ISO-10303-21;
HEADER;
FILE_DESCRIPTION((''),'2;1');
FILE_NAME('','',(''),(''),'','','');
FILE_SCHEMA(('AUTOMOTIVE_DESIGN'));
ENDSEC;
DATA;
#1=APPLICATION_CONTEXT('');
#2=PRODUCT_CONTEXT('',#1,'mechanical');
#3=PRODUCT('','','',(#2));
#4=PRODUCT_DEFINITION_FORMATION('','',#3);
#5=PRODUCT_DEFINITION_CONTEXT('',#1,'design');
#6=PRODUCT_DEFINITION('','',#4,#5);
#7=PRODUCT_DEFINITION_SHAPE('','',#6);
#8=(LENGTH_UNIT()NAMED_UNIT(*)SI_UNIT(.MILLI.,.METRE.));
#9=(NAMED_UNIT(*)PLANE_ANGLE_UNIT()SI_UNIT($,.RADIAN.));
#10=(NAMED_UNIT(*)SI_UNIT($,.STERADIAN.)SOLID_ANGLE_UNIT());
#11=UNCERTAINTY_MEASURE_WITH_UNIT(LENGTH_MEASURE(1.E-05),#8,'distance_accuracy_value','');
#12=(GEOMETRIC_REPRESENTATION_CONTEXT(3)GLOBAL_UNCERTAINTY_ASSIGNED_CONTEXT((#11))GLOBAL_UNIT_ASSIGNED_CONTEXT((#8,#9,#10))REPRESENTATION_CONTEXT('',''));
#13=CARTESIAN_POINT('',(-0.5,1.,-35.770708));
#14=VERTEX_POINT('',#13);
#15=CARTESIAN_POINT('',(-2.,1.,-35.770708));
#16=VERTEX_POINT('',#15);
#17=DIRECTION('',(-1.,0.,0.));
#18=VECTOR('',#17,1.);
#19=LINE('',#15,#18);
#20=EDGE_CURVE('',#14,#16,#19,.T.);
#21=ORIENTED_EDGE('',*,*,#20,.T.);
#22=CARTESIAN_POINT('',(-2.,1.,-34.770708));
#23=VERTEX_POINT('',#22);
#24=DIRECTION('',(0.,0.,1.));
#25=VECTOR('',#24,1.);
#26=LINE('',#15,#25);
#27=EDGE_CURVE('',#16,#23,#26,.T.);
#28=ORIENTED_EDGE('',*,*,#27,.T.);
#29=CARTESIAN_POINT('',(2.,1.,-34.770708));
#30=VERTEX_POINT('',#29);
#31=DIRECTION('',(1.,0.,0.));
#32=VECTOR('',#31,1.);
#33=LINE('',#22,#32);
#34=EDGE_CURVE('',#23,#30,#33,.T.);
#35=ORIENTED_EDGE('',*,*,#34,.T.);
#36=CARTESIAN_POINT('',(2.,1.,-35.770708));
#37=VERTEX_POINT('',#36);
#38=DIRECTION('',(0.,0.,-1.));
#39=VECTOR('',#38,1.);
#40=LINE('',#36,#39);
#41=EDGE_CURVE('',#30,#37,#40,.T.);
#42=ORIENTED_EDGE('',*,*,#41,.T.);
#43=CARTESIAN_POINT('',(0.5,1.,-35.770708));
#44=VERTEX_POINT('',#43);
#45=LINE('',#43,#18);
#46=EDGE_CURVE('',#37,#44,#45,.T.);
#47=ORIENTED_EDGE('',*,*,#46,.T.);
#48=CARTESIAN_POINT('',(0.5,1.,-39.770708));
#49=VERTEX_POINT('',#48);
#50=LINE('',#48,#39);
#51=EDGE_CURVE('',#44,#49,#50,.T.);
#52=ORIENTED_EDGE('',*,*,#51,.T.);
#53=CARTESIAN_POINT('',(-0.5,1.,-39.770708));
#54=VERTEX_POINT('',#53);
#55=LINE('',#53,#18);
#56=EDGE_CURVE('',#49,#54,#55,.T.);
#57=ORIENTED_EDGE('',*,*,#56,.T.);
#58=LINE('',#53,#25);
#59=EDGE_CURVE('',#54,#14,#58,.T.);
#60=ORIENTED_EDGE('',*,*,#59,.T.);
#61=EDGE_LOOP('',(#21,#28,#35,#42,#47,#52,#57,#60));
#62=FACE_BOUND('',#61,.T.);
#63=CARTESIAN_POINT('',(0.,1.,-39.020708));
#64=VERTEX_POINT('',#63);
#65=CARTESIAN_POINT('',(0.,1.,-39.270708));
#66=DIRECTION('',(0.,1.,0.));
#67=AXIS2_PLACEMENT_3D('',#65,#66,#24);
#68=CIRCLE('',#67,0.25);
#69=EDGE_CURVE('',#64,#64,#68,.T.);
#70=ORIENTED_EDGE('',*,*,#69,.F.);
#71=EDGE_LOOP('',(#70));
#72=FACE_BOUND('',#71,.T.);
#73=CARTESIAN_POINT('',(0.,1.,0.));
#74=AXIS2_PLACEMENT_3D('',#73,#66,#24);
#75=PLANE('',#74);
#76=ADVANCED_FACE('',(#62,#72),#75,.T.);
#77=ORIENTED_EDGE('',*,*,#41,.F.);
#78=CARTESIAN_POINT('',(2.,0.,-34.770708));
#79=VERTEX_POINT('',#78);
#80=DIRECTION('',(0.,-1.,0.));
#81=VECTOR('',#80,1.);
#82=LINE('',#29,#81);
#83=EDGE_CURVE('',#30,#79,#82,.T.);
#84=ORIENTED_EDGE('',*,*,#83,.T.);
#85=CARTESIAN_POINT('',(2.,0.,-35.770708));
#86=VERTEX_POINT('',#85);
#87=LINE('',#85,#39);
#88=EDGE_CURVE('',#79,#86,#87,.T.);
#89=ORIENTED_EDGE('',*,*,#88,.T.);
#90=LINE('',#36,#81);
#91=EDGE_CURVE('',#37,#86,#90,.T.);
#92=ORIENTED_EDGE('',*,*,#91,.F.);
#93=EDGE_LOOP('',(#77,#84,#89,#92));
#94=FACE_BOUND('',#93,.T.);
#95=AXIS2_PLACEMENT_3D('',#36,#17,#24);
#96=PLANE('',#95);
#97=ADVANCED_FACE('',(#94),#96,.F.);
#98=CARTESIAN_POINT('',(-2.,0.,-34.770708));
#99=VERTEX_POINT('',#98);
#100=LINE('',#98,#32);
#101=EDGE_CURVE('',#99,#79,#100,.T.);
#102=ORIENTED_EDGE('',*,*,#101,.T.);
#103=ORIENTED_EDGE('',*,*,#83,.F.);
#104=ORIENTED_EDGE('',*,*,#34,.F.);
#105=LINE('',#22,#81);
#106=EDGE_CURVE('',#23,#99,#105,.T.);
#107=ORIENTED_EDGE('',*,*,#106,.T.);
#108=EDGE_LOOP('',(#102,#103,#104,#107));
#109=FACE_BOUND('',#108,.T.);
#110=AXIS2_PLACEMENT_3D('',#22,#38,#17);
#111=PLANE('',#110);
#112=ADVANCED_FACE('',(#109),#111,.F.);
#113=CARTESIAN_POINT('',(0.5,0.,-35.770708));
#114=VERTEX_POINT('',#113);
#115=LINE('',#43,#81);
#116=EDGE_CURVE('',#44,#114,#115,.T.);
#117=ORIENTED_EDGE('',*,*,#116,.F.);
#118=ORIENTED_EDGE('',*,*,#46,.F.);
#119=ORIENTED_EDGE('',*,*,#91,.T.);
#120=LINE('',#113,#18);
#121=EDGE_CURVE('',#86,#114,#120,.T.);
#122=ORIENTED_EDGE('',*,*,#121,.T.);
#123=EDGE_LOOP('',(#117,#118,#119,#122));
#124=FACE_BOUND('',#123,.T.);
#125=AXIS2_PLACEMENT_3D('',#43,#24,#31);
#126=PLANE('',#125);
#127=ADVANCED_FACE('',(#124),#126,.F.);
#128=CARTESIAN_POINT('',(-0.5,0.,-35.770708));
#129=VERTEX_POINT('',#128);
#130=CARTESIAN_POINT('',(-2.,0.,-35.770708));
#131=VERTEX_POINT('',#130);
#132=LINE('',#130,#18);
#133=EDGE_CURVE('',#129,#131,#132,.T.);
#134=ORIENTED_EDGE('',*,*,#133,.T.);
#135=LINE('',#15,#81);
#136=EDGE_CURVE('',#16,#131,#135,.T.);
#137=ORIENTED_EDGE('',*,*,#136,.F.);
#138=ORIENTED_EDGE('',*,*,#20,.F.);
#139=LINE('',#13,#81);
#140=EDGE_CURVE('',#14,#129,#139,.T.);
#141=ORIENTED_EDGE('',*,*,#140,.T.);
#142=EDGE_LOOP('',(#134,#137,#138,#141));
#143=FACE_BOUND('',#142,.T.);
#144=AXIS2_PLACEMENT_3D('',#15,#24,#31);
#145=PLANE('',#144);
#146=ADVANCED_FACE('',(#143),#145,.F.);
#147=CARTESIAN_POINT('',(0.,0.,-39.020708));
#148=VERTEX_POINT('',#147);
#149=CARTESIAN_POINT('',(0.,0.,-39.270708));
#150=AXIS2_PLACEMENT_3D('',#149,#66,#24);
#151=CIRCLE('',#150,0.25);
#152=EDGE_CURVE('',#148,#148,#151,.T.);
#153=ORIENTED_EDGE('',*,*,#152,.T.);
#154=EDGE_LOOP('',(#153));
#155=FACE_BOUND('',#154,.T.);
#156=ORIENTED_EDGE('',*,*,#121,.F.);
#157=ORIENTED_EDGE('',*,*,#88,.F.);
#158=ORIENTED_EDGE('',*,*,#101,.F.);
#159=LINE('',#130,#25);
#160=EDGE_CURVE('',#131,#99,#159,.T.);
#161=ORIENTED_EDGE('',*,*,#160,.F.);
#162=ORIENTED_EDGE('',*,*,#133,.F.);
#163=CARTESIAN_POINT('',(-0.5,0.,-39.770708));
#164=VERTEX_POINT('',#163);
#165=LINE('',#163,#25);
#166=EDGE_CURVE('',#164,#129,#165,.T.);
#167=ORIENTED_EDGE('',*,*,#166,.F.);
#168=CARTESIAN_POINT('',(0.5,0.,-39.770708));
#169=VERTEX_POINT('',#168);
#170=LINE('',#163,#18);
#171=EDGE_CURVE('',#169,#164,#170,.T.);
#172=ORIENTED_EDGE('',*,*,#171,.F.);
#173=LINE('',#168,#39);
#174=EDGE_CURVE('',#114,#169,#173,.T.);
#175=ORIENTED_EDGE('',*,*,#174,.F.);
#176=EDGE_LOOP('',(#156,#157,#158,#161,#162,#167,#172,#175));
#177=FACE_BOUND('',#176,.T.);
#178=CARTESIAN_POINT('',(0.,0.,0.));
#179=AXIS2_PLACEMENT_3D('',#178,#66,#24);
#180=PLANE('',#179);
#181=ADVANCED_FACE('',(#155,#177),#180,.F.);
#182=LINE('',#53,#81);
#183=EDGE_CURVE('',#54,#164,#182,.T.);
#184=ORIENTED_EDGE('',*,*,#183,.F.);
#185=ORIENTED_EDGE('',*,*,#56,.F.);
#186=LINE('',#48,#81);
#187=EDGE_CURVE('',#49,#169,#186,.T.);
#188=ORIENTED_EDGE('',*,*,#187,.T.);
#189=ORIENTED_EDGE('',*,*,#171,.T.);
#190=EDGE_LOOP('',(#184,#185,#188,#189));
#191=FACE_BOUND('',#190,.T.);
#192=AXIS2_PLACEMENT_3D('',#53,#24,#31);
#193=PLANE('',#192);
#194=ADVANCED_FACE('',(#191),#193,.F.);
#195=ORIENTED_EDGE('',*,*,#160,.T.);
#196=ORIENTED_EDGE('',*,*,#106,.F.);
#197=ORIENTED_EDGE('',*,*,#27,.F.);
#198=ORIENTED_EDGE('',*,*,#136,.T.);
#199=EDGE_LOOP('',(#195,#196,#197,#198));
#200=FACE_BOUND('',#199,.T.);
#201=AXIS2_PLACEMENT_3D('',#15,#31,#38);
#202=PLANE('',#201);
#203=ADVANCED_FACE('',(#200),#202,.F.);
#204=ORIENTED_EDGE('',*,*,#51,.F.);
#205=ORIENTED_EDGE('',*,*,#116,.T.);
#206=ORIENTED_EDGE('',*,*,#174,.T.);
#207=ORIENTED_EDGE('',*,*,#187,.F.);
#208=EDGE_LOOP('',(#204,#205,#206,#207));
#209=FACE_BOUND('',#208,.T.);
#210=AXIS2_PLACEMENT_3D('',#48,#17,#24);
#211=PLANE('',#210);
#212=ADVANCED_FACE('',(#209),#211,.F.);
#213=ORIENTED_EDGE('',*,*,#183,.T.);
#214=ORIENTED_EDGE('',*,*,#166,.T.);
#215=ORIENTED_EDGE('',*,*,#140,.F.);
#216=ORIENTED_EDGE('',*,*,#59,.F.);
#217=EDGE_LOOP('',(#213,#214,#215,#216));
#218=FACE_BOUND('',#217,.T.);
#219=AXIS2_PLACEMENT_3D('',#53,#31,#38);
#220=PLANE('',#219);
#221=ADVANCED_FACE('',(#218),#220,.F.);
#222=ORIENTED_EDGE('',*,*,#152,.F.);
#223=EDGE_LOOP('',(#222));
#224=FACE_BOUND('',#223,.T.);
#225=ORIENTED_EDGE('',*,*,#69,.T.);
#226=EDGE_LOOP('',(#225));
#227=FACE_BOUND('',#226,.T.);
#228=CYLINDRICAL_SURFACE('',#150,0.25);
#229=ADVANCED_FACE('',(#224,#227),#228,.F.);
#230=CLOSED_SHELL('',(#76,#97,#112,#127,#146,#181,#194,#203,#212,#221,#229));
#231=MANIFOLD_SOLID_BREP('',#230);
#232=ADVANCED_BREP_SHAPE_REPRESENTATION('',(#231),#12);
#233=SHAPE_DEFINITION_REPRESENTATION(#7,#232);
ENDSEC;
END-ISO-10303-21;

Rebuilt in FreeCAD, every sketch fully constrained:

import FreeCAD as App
import Part
import Sketcher


def add_polygon(sketch, points):
    """Adds a closed chain of lines whose ends are joined by coincident constraints."""
    first, n = sketch.GeometryCount, len(points)
    for a, b in zip(points, points[1:] + points[:1]):
        sketch.addGeometry(Part.LineSegment(App.Vector(*a, 0), App.Vector(*b, 0)), False)
    for i in range(n):
        sketch.addConstraint(Sketcher.Constraint("Coincident", first + i, 2, first + (i + 1) % n, 1))

doc = App.newDocument("Part")
params = doc.addObject("Spreadsheet::Sheet", "Params")
for row, (alias, value) in enumerate([
    ("sketch1_width", "4 mm"),
    ("sketch1_width2", "1 mm"),
    ("pad1_length", "1 mm"),
    ("sketch2_diameter", "0.5 mm"),
], start=1):
    params.set(f"A{row}", alias)
    params.set(f"B{row}", "=" + value)
    params.setAlias(f"B{row}", alias)

body = doc.addObject("PartDesign::Body", "Body")

# Sketch on XZ plane
sketch1 = body.newObject("Sketcher::SketchObject", "Sketch")
sketch1.AttachmentSupport = (doc.getObject("XZ_Plane"), [""])
sketch1.MapMode = "FlatFace"
add_polygon(sketch1, [(-0.5, -35.8), (-2, -35.8), (-2, -34.8), (2, -34.8), (2, -35.8), (0.5, -35.8), (0.5, -39.8), (-0.5, -39.8)])  # lines 0-7
sketch1.addConstraint([
    Sketcher.Constraint("Horizontal", 0),
    Sketcher.Constraint("Vertical", 1),
    Sketcher.Constraint("Horizontal", 2),
    Sketcher.Constraint("Vertical", 3),
    Sketcher.Constraint("Horizontal", 4),
    Sketcher.Constraint("Vertical", 5),
    Sketcher.Constraint("Horizontal", 6),
    Sketcher.Constraint("Vertical", 7),
    Sketcher.Constraint("Symmetric", 0, 2, 3, 2, -2),
    Sketcher.Constraint("Equal", 0, 4),
    Sketcher.Constraint("Equal", 6, 1),
    Sketcher.Constraint("Equal", 2, 5),
    Sketcher.Constraint("DistanceX", 2, 1, 2, 2, 4.0),
    Sketcher.Constraint("DistanceX", 6, 2, 6, 1, 1.0),
    Sketcher.Constraint("DistanceY", 0, 2, -1, 1, 35.770708),
])
sketch1.setExpression("Constraints[20]", "Params.sketch1_width")
sketch1.setExpression("Constraints[21]", "Params.sketch1_width2")
pad1 = body.newObject("PartDesign::Pad", "Pad")
pad1.Profile = sketch1
pad1.setExpression("Length", "Params.pad1_length")
pad1.Reversed = True

# Sketch on XZ plane
sketch2 = body.newObject("Sketcher::SketchObject", "Sketch001")
sketch2.AttachmentSupport = (doc.getObject("XZ_Plane"), [""])
sketch2.MapMode = "FlatFace"
sketch2.AttachmentOffset = App.Placement(App.Vector(0, 0, -1), App.Rotation())
sketch2.addGeometry(Part.Circle(App.Vector(0, -39.27, 0), App.Vector(0, 0, 1), 0.25), False)
sketch2.addConstraint([
    Sketcher.Constraint("PointOnObject", 0, 3, -2),
    Sketcher.Constraint("Diameter", 0, 0.5),
    Sketcher.Constraint("DistanceY", 0, 3, -1, 1, 39.270708),
])
sketch2.setExpression("Constraints[1]", "Params.sketch2_diameter")
pocket1 = body.newObject("PartDesign::Pocket", "Pocket")
pocket1.Profile = sketch2
pocket1.Type = "ThroughAll"
pocket1.Reversed = True

doc.recompute()
